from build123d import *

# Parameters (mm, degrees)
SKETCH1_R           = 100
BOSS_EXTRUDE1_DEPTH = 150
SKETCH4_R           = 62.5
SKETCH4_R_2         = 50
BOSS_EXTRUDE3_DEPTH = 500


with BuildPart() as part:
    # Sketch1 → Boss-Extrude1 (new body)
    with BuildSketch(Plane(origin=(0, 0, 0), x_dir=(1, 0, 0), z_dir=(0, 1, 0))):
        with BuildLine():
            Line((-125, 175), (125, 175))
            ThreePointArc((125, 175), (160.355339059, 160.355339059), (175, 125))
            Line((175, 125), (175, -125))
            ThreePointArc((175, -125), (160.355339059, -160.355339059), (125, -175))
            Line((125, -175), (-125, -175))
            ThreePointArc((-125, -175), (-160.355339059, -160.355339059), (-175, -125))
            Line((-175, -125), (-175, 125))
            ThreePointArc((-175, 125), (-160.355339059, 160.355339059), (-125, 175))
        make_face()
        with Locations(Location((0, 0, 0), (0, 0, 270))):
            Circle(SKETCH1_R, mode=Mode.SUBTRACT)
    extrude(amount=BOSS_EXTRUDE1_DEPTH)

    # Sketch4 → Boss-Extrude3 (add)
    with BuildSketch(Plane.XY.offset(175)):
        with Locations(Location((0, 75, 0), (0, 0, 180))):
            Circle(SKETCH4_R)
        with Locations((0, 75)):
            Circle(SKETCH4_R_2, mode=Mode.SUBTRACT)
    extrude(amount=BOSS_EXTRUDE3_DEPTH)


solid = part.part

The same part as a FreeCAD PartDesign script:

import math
import FreeCAD as App
import Part
import Sketcher

doc = App.newDocument("Part")
params = doc.addObject("Spreadsheet::Sheet", "Params")
for row, (alias, value) in enumerate([
    ("sketch1_diameter", "200 mm"),
    ("sketch1_radius", "50 mm"),
    ("sketch1_width", "250 mm"),
    ("pad1_length", "150 mm"),
    ("sketch2_diameter", "125 mm"),
    ("sketch2_diameter2", "100 mm"),
    ("pad2_length", "500 mm"),
], start=1):
    params.set(f"A{row}", alias)
    params.set(f"B{row}", "=" + value)
    params.setAlias(f"B{row}", alias)

body = doc.addObject("PartDesign::Body", "Body")

sketch1 = body.newObject("Sketcher::SketchObject", "Sketch")
sketch1.AttachmentSupport = (doc.getObject("XZ_Plane"), [""])
sketch1.MapMode = "FlatFace"
sketch1.addGeometry([
    Part.LineSegment(App.Vector(125, -175, 0), App.Vector(-125, -175, 0)),
    Part.ArcOfCircle(Part.Circle(App.Vector(-125, -125, 0), App.Vector(0, 0, 1), 50), math.radians(-180), math.radians(-90)),
    Part.LineSegment(App.Vector(-175, -125, 0), App.Vector(-175, 125, 0)),
    Part.ArcOfCircle(Part.Circle(App.Vector(-125, 125, 0), App.Vector(0, 0, 1), 50), math.radians(90), math.radians(180)),
    Part.LineSegment(App.Vector(-125, 175, 0), App.Vector(125, 175, 0)),
    Part.ArcOfCircle(Part.Circle(App.Vector(125, 125, 0), App.Vector(0, 0, 1), 50), math.radians(0), math.radians(90)),
    Part.LineSegment(App.Vector(175, 125, 0), App.Vector(175, -125, 0)),
    Part.ArcOfCircle(Part.Circle(App.Vector(125, -125, 0), App.Vector(0, 0, 1), 50), math.radians(-90), math.radians(0)),
    Part.Circle(App.Vector(0, 0, 0), App.Vector(0, 0, 1), 100),
], False)
sketch1.addConstraint([
    Sketcher.Constraint("Tangent", 0, 2, 1, 2),
    Sketcher.Constraint("Tangent", 1, 1, 2, 1),
    Sketcher.Constraint("Tangent", 2, 2, 3, 2),
    Sketcher.Constraint("Tangent", 3, 1, 4, 1),
    Sketcher.Constraint("Tangent", 4, 2, 5, 2),
    Sketcher.Constraint("Tangent", 5, 1, 6, 1),
    Sketcher.Constraint("Tangent", 6, 2, 7, 2),
    Sketcher.Constraint("Tangent", 7, 1, 0, 1),
    Sketcher.Constraint("Horizontal", 0),
    Sketcher.Constraint("Vertical", 2),
    Sketcher.Constraint("Horizontal", 4),
    Sketcher.Constraint("Vertical", 6),
    Sketcher.Constraint("Coincident", 8, 3, -1, 1),
    Sketcher.Constraint("Equal", 1, 3),
    Sketcher.Constraint("Equal", 3, 5),
    Sketcher.Constraint("Equal", 5, 7),
    Sketcher.Constraint("Symmetric", 1, 3, 5, 3, -1, 1),
    Sketcher.Constraint("Equal", 4, 2),
    Sketcher.Constraint("Diameter", 8, 200.0),
    Sketcher.Constraint("Radius", 1, 50.0),
    Sketcher.Constraint("DistanceX", 0, 2, 0, 1, 250.0),
])
sketch1.setExpression("Constraints[18]", "Params.sketch1_diameter")
sketch1.setExpression("Constraints[19]", "Params.sketch1_radius")
sketch1.setExpression("Constraints[20]", "Params.sketch1_width")
pad1 = body.newObject("PartDesign::Pad", "Pad")
pad1.Profile = sketch1
pad1.setExpression("Length", "Params.pad1_length")
pad1.Reversed = True

sketch2 = body.newObject("Sketcher::SketchObject", "Sketch001")
sketch2.AttachmentSupport = (doc.getObject("XY_Plane"), [""])
sketch2.MapMode = "FlatFace"
sketch2.AttachmentOffset = App.Placement(App.Vector(0, 0, 175), App.Rotation())
sketch2.addGeometry([
    Part.Circle(App.Vector(0, 75, 0), App.Vector(0, 0, 1), 62),
    Part.Circle(App.Vector(0, 75, 0), App.Vector(0, 0, 1), 50),
], False)
sketch2.addConstraint([
    Sketcher.Constraint("Coincident", 1, 3, 0, 3),
    Sketcher.Constraint("PointOnObject", 0, 3, -2),
    Sketcher.Constraint("Diameter", 0, 125.0),
    Sketcher.Constraint("Diameter", 1, 100.0),
    Sketcher.Constraint("DistanceY", -1, 1, 0, 3, 75.0),
])
sketch2.setExpression("Constraints[2]", "Params.sketch2_diameter")
sketch2.setExpression("Constraints[3]", "Params.sketch2_diameter2")
pad2 = body.newObject("PartDesign::Pad", "Pad001")
pad2.Profile = sketch2
pad2.setExpression("Length", "Params.pad2_length")

doc.recompute()
